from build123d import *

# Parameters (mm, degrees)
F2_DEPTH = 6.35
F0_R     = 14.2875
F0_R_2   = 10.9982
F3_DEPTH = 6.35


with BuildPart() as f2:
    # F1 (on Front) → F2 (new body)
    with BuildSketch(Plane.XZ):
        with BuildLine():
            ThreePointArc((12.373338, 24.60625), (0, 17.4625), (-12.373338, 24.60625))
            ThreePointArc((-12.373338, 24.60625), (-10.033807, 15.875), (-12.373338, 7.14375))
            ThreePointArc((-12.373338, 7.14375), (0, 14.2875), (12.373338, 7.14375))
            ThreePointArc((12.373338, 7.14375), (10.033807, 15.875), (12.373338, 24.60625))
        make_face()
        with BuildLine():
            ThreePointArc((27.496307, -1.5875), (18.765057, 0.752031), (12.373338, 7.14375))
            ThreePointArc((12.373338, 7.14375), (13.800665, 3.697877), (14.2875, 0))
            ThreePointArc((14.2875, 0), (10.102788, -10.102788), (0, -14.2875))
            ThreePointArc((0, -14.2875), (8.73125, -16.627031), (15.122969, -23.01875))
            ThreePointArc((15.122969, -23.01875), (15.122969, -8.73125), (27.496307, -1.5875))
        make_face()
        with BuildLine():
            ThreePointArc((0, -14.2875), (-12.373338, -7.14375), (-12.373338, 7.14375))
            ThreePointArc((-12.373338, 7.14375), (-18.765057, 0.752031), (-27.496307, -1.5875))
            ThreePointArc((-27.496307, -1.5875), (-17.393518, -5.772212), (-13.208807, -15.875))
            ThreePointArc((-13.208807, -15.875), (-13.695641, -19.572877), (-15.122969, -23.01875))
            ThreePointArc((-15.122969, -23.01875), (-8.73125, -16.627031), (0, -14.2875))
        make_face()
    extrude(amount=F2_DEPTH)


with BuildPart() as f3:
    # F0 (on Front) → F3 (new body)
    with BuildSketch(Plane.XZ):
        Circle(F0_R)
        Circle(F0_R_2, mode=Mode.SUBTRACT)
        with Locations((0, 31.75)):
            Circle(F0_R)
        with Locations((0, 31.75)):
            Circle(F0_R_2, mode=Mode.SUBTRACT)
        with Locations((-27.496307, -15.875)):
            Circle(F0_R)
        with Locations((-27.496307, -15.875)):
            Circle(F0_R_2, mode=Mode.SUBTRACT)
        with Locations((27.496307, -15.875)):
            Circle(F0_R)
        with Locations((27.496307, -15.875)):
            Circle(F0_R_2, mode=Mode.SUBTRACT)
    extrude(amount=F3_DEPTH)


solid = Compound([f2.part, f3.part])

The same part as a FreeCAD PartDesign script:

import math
import FreeCAD as App
import Part
import Sketcher
from FreeCAD import Vector
Q = App.Units.Quantity

doc = App.newDocument("Part")
body = doc.addObject("PartDesign::Body", "Body")
body.AllowCompound = True

sketch1 = body.newObject("Sketcher::SketchObject", "Sketch")
sketch1.AttachmentSupport = (doc.getObject("XZ_Plane"), [""])
sketch1.MapMode = "FlatFace"
sketch1.addGeometry(Part.ArcOfCircle(Part.Circle(Vector(0, 31.75, 0), Vector(0, 0, 1), 14.2875), math.radians(-150), math.radians(-30)), False)
sketch1.addGeometry(Part.ArcOfCircle(Part.Circle(Vector(-27.496309, 15.875, 0), Vector(0, 0, 1), 17.462502), math.radians(-29.999995), math.radians(29.999995)), False)
sketch1.addGeometry(Part.ArcOfCircle(Part.Circle(Vector(0, 0, 0), Vector(0, 0, 1), 14.2875), math.radians(30), math.radians(150)), False)
sketch1.addGeometry(Part.ArcOfCircle(Part.Circle(Vector(27.496309, 15.875, 0), Vector(0, 0, 1), 17.462502), math.radians(150.000005), math.radians(209.999995)), False)
sketch1.addGeometry(Part.ArcOfCircle(Part.Circle(Vector(27.496306, 15.874999, 0), Vector(0, 0, 1), 17.462499), math.radians(-150.000002), math.radians(-89.999997)), False)
sketch1.addGeometry(Part.ArcOfCircle(Part.Circle(Vector(-0.000008, -0.000002, 0), Vector(0, 0, 1), 14.287508), math.radians(0.000008), math.radians(29.999991)), False)
sketch1.addGeometry(Part.ArcOfCircle(Part.Circle(Vector(0, 0, 0), Vector(0, 0, 1), 14.2875), math.radians(-89.999998), math.radians(-0.000002)), False)
sketch1.addGeometry(Part.ArcOfCircle(Part.Circle(Vector(0.000001, -31.749999, 0), Vector(0, 0, 1), 17.462499), math.radians(29.999998), math.radians(90.000003)), False)
sketch1.addGeometry(Part.ArcOfCircle(Part.Circle(Vector(27.496307, -15.875, 0), Vector(0, 0, 1), 14.2875), math.radians(90), math.radians(210)), False)
sketch1.addGeometry(Part.ArcOfCircle(Part.Circle(Vector(0, 0, 0), Vector(0, 0, 1), 14.2875), math.radians(150), math.radians(270)), False)
sketch1.addGeometry(Part.ArcOfCircle(Part.Circle(Vector(-27.496306, 15.874999, 0), Vector(0, 0, 1), 17.462499), math.radians(-90.000003), math.radians(-29.999998)), False)
sketch1.addGeometry(Part.ArcOfCircle(Part.Circle(Vector(-27.496306, -15.874999, 0), Vector(0, 0, 1), 14.287499), math.radians(-0.000005), math.radians(90.000005)), False)
sketch1.addGeometry(Part.ArcOfCircle(Part.Circle(Vector(-27.496288, -15.875005, 0), Vector(0, 0, 1), 14.287481), math.radians(-30.00002), math.radians(0.000021)), False)
sketch1.addGeometry(Part.ArcOfCircle(Part.Circle(Vector(-0.000001, -31.749999, 0), Vector(0, 0, 1), 17.462499), math.radians(89.999997), math.radians(150.000002)), False)
sketch1.addConstraint(Sketcher.Constraint("Coincident", 0, 1, 1, 2))
sketch1.addConstraint(Sketcher.Constraint("Coincident", 1, 1, 2, 2))
sketch1.addConstraint(Sketcher.Constraint("Coincident", 2, 1, 3, 2))
sketch1.addConstraint(Sketcher.Constraint("Coincident", 3, 1, 0, 2))
sketch1.addConstraint(Sketcher.Constraint("Coincident", 4, 1, 5, 2))
sketch1.addConstraint(Sketcher.Constraint("Coincident", 5, 1, 6, 2))
sketch1.addConstraint(Sketcher.Constraint("Coincident", 6, 1, 7, 2))
sketch1.addConstraint(Sketcher.Constraint("Coincident", 7, 1, 8, 2))
sketch1.addConstraint(Sketcher.Constraint("Coincident", 8, 1, 4, 2))
sketch1.addConstraint(Sketcher.Constraint("Coincident", 9, 1, 10, 2))
sketch1.addConstraint(Sketcher.Constraint("Coincident", 10, 1, 11, 2))
sketch1.addConstraint(Sketcher.Constraint("Coincident", 11, 1, 12, 2))
sketch1.addConstraint(Sketcher.Constraint("Coincident", 12, 1, 13, 2))
sketch1.addConstraint(Sketcher.Constraint("Coincident", 13, 1, 9, 2))
sketch1.addConstraint(Sketcher.Constraint("Coincident", 2, 3, -1, 1))
sketch1.addConstraint(Sketcher.Constraint("Coincident", 5, 3, -1, 1))
sketch1.addConstraint(Sketcher.Constraint("Coincident", 6, 3, -1, 1))
sketch1.addConstraint(Sketcher.Constraint("Coincident", 9, 3, -1, 1))
sketch1.addConstraint(Sketcher.Constraint("Coincident", 4, 3, 3, 3))
sketch1.addConstraint(Sketcher.Constraint("Coincident", 10, 3, 1, 3))
sketch1.addConstraint(Sketcher.Constraint("Coincident", 13, 3, 7, 3))
sketch1.addConstraint(Sketcher.Constraint("Coincident", 4, 1, 2, 1))
sketch1.addConstraint(Sketcher.Constraint("Coincident", 9, 1, 1, 1))
sketch1.addConstraint(Sketcher.Constraint("PointOnObject", 0, 3, -2))
sketch1.addConstraint(Sketcher.Constraint("PointOnObject", 7, 3, -2))
sketch1.addConstraint(Sketcher.Constraint("PointOnObject", 5, 1, -1))
sketch1.addConstraint(Sketcher.Constraint("PointOnObject", 6, 1, -2))
sketch1.addConstraint(Sketcher.Constraint("PointOnObject", 13, 1, -2))
sketch1.addConstraint(Sketcher.Constraint("Radius", 0, Q("0.5625 in")))
sketch1.addConstraint(Sketcher.Constraint("Radius", 1, Q("0.6875001 in")))
sketch1.addConstraint(Sketcher.Constraint("Radius", 2, Q("0.5625 in")))
sketch1.addConstraint(Sketcher.Constraint("Radius", 3, Q("0.6875001 in")))
sketch1.addConstraint(Sketcher.Constraint("Radius", 7, Q("0.6875 in")))
sketch1.addConstraint(Sketcher.Constraint("Radius", 8, Q("0.5625 in")))
sketch1.addConstraint(Sketcher.Constraint("Radius", 11, Q("0.5625 in")))
sketch1.addConstraint(Sketcher.Constraint("DistanceY", -1, 1, 0, 3, Q("1.25 in")))
sketch1.addConstraint(Sketcher.Constraint("DistanceY", -1, 1, 0, 1, Q("0.96875 in")))
sketch1.addConstraint(Sketcher.Constraint("DistanceY", -1, 1, 1, 1, Q("0.28125 in")))
sketch1.addConstraint(Sketcher.Constraint("DistanceY", -1, 1, 2, 1, Q("0.28125 in")))
sketch1.addConstraint(Sketcher.Constraint("DistanceY", -1, 1, 3, 1, Q("0.96875 in")))
sketch1.addConstraint(Sketcher.Constraint("DistanceY", 7, 1, -1, 1, Q("0.90625 in")))
sketch1.addConstraint(Sketcher.Constraint("DistanceY", 11, 1, -1, 1, Q("0.625 in")))
sketch1.addConstraint(Sketcher.Constraint("DistanceY", 12, 1, -1, 1, Q("0.90625 in")))
sketch1.addConstraint(Sketcher.Constraint("Radius", 12, 14.287481))
sketch1.addConstraint(Sketcher.Constraint("DistanceY", 12, 3, 5, 3, Q("0.6250001 in")))
sketch1.addConstraint(Sketcher.Constraint("DistanceX", 10, 1, 11, 1, Q("0.5625 in")))
sketch1.addConstraint(Sketcher.Constraint("DistanceX", 4, 1, 8, 1, 15.122969))
pad1 = body.newObject("PartDesign::Pad", "Pad")
pad1.Profile = sketch1
pad1.Length = Q("0.25 in")
body2 = doc.addObject("PartDesign::Body", "Body001")
body2.AllowCompound = True

sketch2 = body2.newObject("Sketcher::SketchObject", "Sketch001")
sketch2.AttachmentSupport = (doc.getObject("XZ_Plane001"), [""])
sketch2.MapMode = "FlatFace"
sketch2.addGeometry(Part.Circle(Vector(0, 0, 0), Vector(0, 0, 1), 14), False)
sketch2.addGeometry(Part.Circle(Vector(0, 0, 0), Vector(0, 0, 1), 11), False)
sketch2.addGeometry(Part.Circle(Vector(0, 32, 0), Vector(0, 0, 1), 14), False)
sketch2.addGeometry(Part.Circle(Vector(0, 32, 0), Vector(0, 0, 1), 11), False)
sketch2.addGeometry(Part.Circle(Vector(-27, -16, 0), Vector(0, 0, 1), 14), False)
sketch2.addGeometry(Part.Circle(Vector(-27, -16, 0), Vector(0, 0, 1), 11), False)
sketch2.addGeometry(Part.Circle(Vector(27, -16, 0), Vector(0, 0, 1), 14), False)
sketch2.addGeometry(Part.Circle(Vector(27, -16, 0), Vector(0, 0, 1), 11), False)
sketch2.addConstraint(Sketcher.Constraint("Coincident", 0, 3, -1, 1))
sketch2.addConstraint(Sketcher.Constraint("Coincident", 1, 3, -1, 1))
sketch2.addConstraint(Sketcher.Constraint("Coincident", 3, 3, 2, 3))
sketch2.addConstraint(Sketcher.Constraint("Coincident", 5, 3, 4, 3))
sketch2.addConstraint(Sketcher.Constraint("Coincident", 7, 3, 6, 3))
sketch2.addConstraint(Sketcher.Constraint("Equal", 0, 2))
sketch2.addConstraint(Sketcher.Constraint("Equal", 1, 3))
sketch2.addConstraint(Sketcher.Constraint("Equal", 2, 4))
sketch2.addConstraint(Sketcher.Constraint("Equal", 3, 5))
sketch2.addConstraint(Sketcher.Constraint("Equal", 4, 6))
sketch2.addConstraint(Sketcher.Constraint("Equal", 5, 7))
sketch2.addConstraint(Sketcher.Constraint("Symmetric", 4, 3, 6, 3, -2))
sketch2.addConstraint(Sketcher.Constraint("PointOnObject", 2, 3, -2))
sketch2.addConstraint(Sketcher.Constraint("Diameter", 0, Q("1.125 in")))
sketch2.addConstraint(Sketcher.Constraint("Diameter", 1, Q("0.866 in")))
sketch2.addConstraint(Sketcher.Constraint("DistanceY", -1, 1, 2, 3, Q("1.25 in")))
sketch2.addConstraint(Sketcher.Constraint("DistanceY", 4, 3, -1, 1, Q("0.625 in")))
sketch2.addConstraint(Sketcher.Constraint("DistanceX", 4, 3, -1, 1, 27.496307))
pad2 = body2.newObject("PartDesign::Pad", "Pad001")
pad2.Profile = sketch2
pad2.Length = Q("0.25 in")

doc.recompute()
